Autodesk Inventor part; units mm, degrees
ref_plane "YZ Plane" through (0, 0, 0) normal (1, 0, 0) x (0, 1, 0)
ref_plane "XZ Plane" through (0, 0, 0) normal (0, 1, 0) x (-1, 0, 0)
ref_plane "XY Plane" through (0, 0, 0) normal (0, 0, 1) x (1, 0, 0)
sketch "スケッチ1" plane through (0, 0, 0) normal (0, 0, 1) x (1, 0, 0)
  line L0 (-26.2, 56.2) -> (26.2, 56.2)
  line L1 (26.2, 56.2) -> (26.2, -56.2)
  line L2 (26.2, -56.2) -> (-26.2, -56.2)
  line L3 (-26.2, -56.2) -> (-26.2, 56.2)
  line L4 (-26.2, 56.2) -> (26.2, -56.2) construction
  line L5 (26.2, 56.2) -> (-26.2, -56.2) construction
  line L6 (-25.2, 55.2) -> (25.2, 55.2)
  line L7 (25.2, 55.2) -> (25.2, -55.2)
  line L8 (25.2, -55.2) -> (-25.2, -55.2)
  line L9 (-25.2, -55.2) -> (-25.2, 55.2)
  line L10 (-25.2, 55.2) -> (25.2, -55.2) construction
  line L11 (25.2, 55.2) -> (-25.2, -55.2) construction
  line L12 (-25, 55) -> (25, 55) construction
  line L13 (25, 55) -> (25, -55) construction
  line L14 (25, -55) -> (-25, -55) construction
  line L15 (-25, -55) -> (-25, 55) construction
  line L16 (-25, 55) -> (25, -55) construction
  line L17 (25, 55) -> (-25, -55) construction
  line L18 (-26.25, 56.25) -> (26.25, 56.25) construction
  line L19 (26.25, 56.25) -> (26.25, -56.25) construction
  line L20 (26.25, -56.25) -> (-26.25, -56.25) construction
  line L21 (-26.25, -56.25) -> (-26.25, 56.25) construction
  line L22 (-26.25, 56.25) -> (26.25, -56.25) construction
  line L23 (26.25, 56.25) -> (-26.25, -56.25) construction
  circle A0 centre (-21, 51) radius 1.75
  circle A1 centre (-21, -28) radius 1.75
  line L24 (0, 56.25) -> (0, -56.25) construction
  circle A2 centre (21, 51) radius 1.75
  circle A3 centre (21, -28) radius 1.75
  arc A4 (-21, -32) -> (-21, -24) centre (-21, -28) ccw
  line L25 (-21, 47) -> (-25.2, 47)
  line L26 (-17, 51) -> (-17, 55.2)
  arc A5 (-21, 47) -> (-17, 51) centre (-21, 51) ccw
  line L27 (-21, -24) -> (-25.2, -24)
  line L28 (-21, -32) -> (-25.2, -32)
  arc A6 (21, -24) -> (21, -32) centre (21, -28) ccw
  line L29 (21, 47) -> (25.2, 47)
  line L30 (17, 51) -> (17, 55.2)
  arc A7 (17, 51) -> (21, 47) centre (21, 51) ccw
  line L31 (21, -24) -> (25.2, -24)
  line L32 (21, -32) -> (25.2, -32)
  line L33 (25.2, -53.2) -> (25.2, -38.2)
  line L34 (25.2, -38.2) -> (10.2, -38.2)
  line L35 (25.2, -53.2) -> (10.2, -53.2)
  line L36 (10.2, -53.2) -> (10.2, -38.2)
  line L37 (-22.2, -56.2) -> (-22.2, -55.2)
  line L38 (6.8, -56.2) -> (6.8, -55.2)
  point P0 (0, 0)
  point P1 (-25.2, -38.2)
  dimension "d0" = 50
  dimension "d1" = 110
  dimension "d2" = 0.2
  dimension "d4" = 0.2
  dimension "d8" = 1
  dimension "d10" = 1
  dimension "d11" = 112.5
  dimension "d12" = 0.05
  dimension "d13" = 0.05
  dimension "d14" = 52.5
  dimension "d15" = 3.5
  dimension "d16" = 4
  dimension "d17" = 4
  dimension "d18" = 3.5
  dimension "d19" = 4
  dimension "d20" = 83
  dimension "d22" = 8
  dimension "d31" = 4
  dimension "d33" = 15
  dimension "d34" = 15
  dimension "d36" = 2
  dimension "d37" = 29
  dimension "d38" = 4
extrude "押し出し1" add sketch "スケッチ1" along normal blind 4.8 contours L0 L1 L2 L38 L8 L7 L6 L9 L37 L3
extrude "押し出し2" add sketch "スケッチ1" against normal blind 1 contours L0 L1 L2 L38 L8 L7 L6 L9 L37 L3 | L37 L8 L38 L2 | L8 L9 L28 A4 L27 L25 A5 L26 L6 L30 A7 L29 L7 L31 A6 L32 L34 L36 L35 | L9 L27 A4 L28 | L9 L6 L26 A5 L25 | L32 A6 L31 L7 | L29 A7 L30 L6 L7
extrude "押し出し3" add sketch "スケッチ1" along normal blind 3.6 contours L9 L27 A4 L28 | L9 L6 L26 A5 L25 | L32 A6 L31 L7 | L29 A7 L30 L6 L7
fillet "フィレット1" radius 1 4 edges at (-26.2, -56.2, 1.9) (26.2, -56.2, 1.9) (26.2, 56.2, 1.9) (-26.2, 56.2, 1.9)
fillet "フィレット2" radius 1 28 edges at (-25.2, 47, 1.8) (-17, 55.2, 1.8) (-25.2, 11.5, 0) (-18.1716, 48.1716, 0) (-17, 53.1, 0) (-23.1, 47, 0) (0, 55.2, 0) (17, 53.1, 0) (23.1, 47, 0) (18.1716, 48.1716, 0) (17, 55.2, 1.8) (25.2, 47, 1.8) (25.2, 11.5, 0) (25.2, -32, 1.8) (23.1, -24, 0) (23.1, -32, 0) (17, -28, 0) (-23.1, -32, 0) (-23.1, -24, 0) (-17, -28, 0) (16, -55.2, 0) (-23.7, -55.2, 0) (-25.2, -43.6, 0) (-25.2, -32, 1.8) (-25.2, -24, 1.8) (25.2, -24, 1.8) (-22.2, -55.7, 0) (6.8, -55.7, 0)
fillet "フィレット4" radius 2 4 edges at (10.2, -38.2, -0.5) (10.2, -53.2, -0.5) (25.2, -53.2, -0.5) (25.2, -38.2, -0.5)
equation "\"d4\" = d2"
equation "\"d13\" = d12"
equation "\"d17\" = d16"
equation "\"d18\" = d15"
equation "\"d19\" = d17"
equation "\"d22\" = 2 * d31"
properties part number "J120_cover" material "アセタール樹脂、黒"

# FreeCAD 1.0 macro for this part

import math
import FreeCAD as App
import Part
import Sketcher

V = App.Vector
Q = App.Units.Quantity


def edges_at(feature, points):
    """Names of the edges that pass closest to the given points."""
    edges = feature.Shape.Edges
    near = lambda p: min(range(len(edges)), key=lambda i: edges[i].distToShape(Part.Vertex(*p))[0])
    return sorted({f"Edge{near(p) + 1}" for p in points})


def add_polygon(sketch, points):
    """Adds a closed chain of lines whose ends are joined by coincident constraints."""
    first, n = sketch.GeometryCount, len(points)
    for a, b in zip(points, points[1:] + points[:1]):
        sketch.addGeometry(Part.LineSegment(App.Vector(*a, 0), App.Vector(*b, 0)), False)
    for i in range(n):
        sketch.addConstraint(Sketcher.Constraint("Coincident", first + i, 2, first + (i + 1) % n, 1))

doc = App.newDocument("Part")
body = doc.addObject("PartDesign::Body", "Body")

sketch1 = body.newObject("Sketcher::SketchObject", "Sketch")
sketch1.AttachmentSupport = (doc.getObject("XY_Plane"), [""])
sketch1.MapMode = "FlatFace"
add_polygon(sketch1, [(26.2, 56.2), (-26.2, 56.2), (-26.2, -56.2), (-22.2, -56.2), (-22.2, -55.2), (-25.2, -55.2), (-25.2, 55.2), (25.2, 55.2), (25.2, -55.2), (6.8, -55.2), (6.8, -56.2), (26.2, -56.2)])
sketch1.addConstraint(Sketcher.Constraint("Horizontal", 0))
sketch1.addConstraint(Sketcher.Constraint("Vertical", 1))
sketch1.addConstraint(Sketcher.Constraint("Horizontal", 2))
sketch1.addConstraint(Sketcher.Constraint("Vertical", 3))
sketch1.addConstraint(Sketcher.Constraint("Horizontal", 4))
sketch1.addConstraint(Sketcher.Constraint("Vertical", 5))
sketch1.addConstraint(Sketcher.Constraint("Horizontal", 6))
sketch1.addConstraint(Sketcher.Constraint("Vertical", 7))
sketch1.addConstraint(Sketcher.Constraint("Horizontal", 8))
sketch1.addConstraint(Sketcher.Constraint("Vertical", 9))
sketch1.addConstraint(Sketcher.Constraint("Horizontal", 10))
sketch1.addConstraint(Sketcher.Constraint("Vertical", 11))
sketch1.addConstraint(Sketcher.Constraint("Symmetric", 4, 2, 6, 2, -1, 1))
sketch1.addConstraint(Sketcher.Constraint("Symmetric", 0, 2, 10, 2, -1, 1))
sketch1.addConstraint(Sketcher.Constraint("Horizontal", 4, 2, 7, 2))
sketch1.addConstraint(Sketcher.Constraint("Horizontal", 2, 2, 9, 2))
sketch1.addConstraint(Sketcher.Constraint("DistanceX", 2, 1, 2, 2, Q("4 mm")))
sketch1.addConstraint(Sketcher.Constraint("DistanceY", 3, 1, 3, 2, Q("1 mm")))
sketch1.addConstraint(Sketcher.Constraint("DistanceX", 1, 2, 4, 2, Q("1 mm")))
sketch1.addConstraint(Sketcher.Constraint("DistanceX", 3, 2, 8, 2, Q("29 mm")))
sketch1.addConstraint(Sketcher.Constraint("DistanceX", 0, 2, 0, 1, Q("52.4 mm")))
sketch1.addConstraint(Sketcher.Constraint("DistanceY", 1, 2, 1, 1, Q("112.4 mm")))
pad1 = body.newObject("PartDesign::Pad", "Pad")
pad1.Profile = sketch1
pad1.Length = 4.8

sketch2 = body.newObject("Sketcher::SketchObject", "Sketch001")
sketch2.AttachmentSupport = (doc.getObject("XY_Plane"), [""])
sketch2.MapMode = "FlatFace"
add_polygon(sketch2, [(26.2, 56.2), (-26.2, 56.2), (-26.2, -56.2), (26.2, -56.2)])
add_polygon(sketch2, [(25.2, -38.2), (25.2, -53.2), (10.2, -53.2), (10.2, -38.2)])
sketch2.addGeometry(Part.Circle(V(21, -28, 0), V(0, 0, 1), 1.8), False)
sketch2.addGeometry(Part.Circle(V(21, 51, 0), V(0, 0, 1), 1.8), False)
sketch2.addGeometry(Part.Circle(V(-21, 51, 0), V(0, 0, 1), 1.8), False)
sketch2.addGeometry(Part.Circle(V(-21, -28, 0), V(0, 0, 1), 1.8), False)
sketch2.addConstraint(Sketcher.Constraint("Horizontal", 0))
sketch2.addConstraint(Sketcher.Constraint("Vertical", 1))
sketch2.addConstraint(Sketcher.Constraint("Horizontal", 2))
sketch2.addConstraint(Sketcher.Constraint("Vertical", 3))
sketch2.addConstraint(Sketcher.Constraint("Vertical", 4))
sketch2.addConstraint(Sketcher.Constraint("Horizontal", 5))
sketch2.addConstraint(Sketcher.Constraint("Vertical", 6))
sketch2.addConstraint(Sketcher.Constraint("Horizontal", 7))
sketch2.addConstraint(Sketcher.Constraint("Equal", 8, 9))
sketch2.addConstraint(Sketcher.Constraint("Equal", 9, 10))
sketch2.addConstraint(Sketcher.Constraint("Equal", 10, 11))
sketch2.addConstraint(Sketcher.Constraint("Symmetric", 0, 2, 2, 2, -1, 1))
sketch2.addConstraint(Sketcher.Constraint("Symmetric", 9, 3, 10, 3, -2))
sketch2.addConstraint(Sketcher.Constraint("Symmetric", 8, 3, 11, 3, -2))
sketch2.addConstraint(Sketcher.Constraint("Vertical", 8, 3, 9, 3))
sketch2.addConstraint(Sketcher.Constraint("Equal", 7, 4))
sketch2.addConstraint(Sketcher.Constraint("Diameter", 8, Q("3.5 mm")))
sketch2.addConstraint(Sketcher.Constraint("DistanceX", 5, 2, 5, 1, Q("15 mm")))
sketch2.addConstraint(Sketcher.Constraint("DistanceX", 4, 2, 2, 2, Q("1 mm")))
sketch2.addConstraint(Sketcher.Constraint("DistanceX", 0, 2, 0, 1, Q("52.4 mm")))
sketch2.addConstraint(Sketcher.Constraint("DistanceY", 1, 2, 1, 1, Q("112.4 mm")))
sketch2.addConstraint(Sketcher.Constraint("DistanceX", -1, 1, 8, 3, Q("21 mm")))
sketch2.addConstraint(Sketcher.Constraint("DistanceY", 8, 3, -1, 1, Q("28 mm")))
sketch2.addConstraint(Sketcher.Constraint("DistanceY", -1, 1, 9, 3, Q("51 mm")))
sketch2.addConstraint(Sketcher.Constraint("DistanceY", 2, 2, 4, 2, Q("3 mm")))
pad2 = body.newObject("PartDesign::Pad", "Pad001")
pad2.Profile = sketch2
pad2.Length = 1
pad2.Reversed = True

sketch3 = body.newObject("Sketcher::SketchObject", "Sketch002")
sketch3.AttachmentSupport = (doc.getObject("XY_Plane"), [""])
sketch3.MapMode = "FlatFace"
sketch3.addGeometry(Part.LineSegment(V(-25.2, -24, 0), V(-25.2, -32, 0)), False)
sketch3.addGeometry(Part.LineSegment(V(-25.2, -32, 0), V(-21, -32, 0)), False)
sketch3.addGeometry(Part.ArcOfCircle(Part.Circle(V(-21, -28, 0), V(0, 0, 1), 4), math.radians(-90), math.radians(90)), False)
sketch3.addGeometry(Part.LineSegment(V(-21, -24, 0), V(-25.2, -24, 0)), False)
sketch3.addGeometry(Part.Circle(V(-21, -28, 0), V(0, 0, 1), 1.8), False)
sketch3.addGeometry(Part.LineSegment(V(-25.2, 55.2, 0), V(-25.2, 47, 0)), False)
sketch3.addGeometry(Part.LineSegment(V(-25.2, 47, 0), V(-21, 47, 0)), False)
sketch3.addGeometry(Part.ArcOfCircle(Part.Circle(V(-21, 51, 0), V(0, 0, 1), 4), math.radians(-90), math.radians(0)), False)
sketch3.addGeometry(Part.LineSegment(V(-17, 51, 0), V(-17, 55.2, 0)), False)
sketch3.addGeometry(Part.LineSegment(V(-17, 55.2, 0), V(-25.2, 55.2, 0)), False)
sketch3.addGeometry(Part.Circle(V(-21, 51, 0), V(0, 0, 1), 1.8), False)
sketch3.addGeometry(Part.LineSegment(V(21, -32, 0), V(25.2, -32, 0)), False)
sketch3.addGeometry(Part.LineSegment(V(25.2, -32, 0), V(25.2, -24, 0)), False)
sketch3.addGeometry(Part.LineSegment(V(25.2, -24, 0), V(21, -24, 0)), False)
sketch3.addGeometry(Part.ArcOfCircle(Part.Circle(V(21, -28, 0), V(0, 0, 1), 4), math.radians(90), math.radians(270)), False)
sketch3.addGeometry(Part.Circle(V(21, -28, 0), V(0, 0, 1), 1.8), False)
sketch3.addGeometry(Part.LineSegment(V(21, 47, 0), V(25.2, 47, 0)), False)
sketch3.addGeometry(Part.LineSegment(V(25.2, 47, 0), V(25.2, 55.2, 0)), False)
sketch3.addGeometry(Part.LineSegment(V(25.2, 55.2, 0), V(17, 55.2, 0)), False)
sketch3.addGeometry(Part.LineSegment(V(17, 55.2, 0), V(17, 51, 0)), False)
sketch3.addGeometry(Part.ArcOfCircle(Part.Circle(V(21, 51, 0), V(0, 0, 1), 4), math.radians(180), math.radians(270)), False)
sketch3.addGeometry(Part.Circle(V(21, 51, 0), V(0, 0, 1), 1.8), False)
sketch3.addConstraint(Sketcher.Constraint("Coincident", 0, 2, 1, 1))
sketch3.addConstraint(Sketcher.Constraint("Tangent", 1, 2, 2, 1))
sketch3.addConstraint(Sketcher.Constraint("Tangent", 2, 2, 3, 1))
sketch3.addConstraint(Sketcher.Constraint("Coincident", 3, 2, 0, 1))
sketch3.addConstraint(Sketcher.Constraint("Coincident", 5, 2, 6, 1))
sketch3.addConstraint(Sketcher.Constraint("Tangent", 6, 2, 7, 1))
sketch3.addConstraint(Sketcher.Constraint("Tangent", 7, 2, 8, 1))
sketch3.addConstraint(Sketcher.Constraint("Coincident", 8, 2, 9, 1))
sketch3.addConstraint(Sketcher.Constraint("Coincident", 9, 2, 5, 1))
sketch3.addConstraint(Sketcher.Constraint("Coincident", 11, 2, 12, 1))
sketch3.addConstraint(Sketcher.Constraint("Coincident", 12, 2, 13, 1))
sketch3.addConstraint(Sketcher.Constraint("Tangent", 13, 2, 14, 1))
sketch3.addConstraint(Sketcher.Constraint("Tangent", 14, 2, 11, 1))
sketch3.addConstraint(Sketcher.Constraint("Coincident", 16, 2, 17, 1))
sketch3.addConstraint(Sketcher.Constraint("Coincident", 17, 2, 18, 1))
sketch3.addConstraint(Sketcher.Constraint("Coincident", 18, 2, 19, 1))
sketch3.addConstraint(Sketcher.Constraint("Tangent", 19, 2, 20, 1))
sketch3.addConstraint(Sketcher.Constraint("Tangent", 20, 2, 16, 1))
sketch3.addConstraint(Sketcher.Constraint("Vertical", 0))
sketch3.addConstraint(Sketcher.Constraint("Horizontal", 1))
sketch3.addConstraint(Sketcher.Constraint("Horizontal", 3))
sketch3.addConstraint(Sketcher.Constraint("Vertical", 5))
sketch3.addConstraint(Sketcher.Constraint("Horizontal", 6))
sketch3.addConstraint(Sketcher.Constraint("Vertical", 8))
sketch3.addConstraint(Sketcher.Constraint("Horizontal", 9))
sketch3.addConstraint(Sketcher.Constraint("Horizontal", 11))
sketch3.addConstraint(Sketcher.Constraint("Vertical", 12))
sketch3.addConstraint(Sketcher.Constraint("Horizontal", 13))
sketch3.addConstraint(Sketcher.Constraint("Horizontal", 16))
sketch3.addConstraint(Sketcher.Constraint("Vertical", 17))
sketch3.addConstraint(Sketcher.Constraint("Horizontal", 18))
sketch3.addConstraint(Sketcher.Constraint("Vertical", 19))
sketch3.addConstraint(Sketcher.Constraint("Coincident", 4, 3, 2, 3))
sketch3.addConstraint(Sketcher.Constraint("Coincident", 10, 3, 7, 3))
sketch3.addConstraint(Sketcher.Constraint("Coincident", 15, 3, 14, 3))
sketch3.addConstraint(Sketcher.Constraint("Coincident", 21, 3, 20, 3))
sketch3.addConstraint(Sketcher.Constraint("Equal", 2, 7))
sketch3.addConstraint(Sketcher.Constraint("Equal", 4, 10))
sketch3.addConstraint(Sketcher.Constraint("Equal", 7, 14))
sketch3.addConstraint(Sketcher.Constraint("Equal", 10, 15))
sketch3.addConstraint(Sketcher.Constraint("Equal", 14, 20))
sketch3.addConstraint(Sketcher.Constraint("Equal", 15, 21))
sketch3.addConstraint(Sketcher.Constraint("Symmetric", 2, 3, 14, 3, -2))
sketch3.addConstraint(Sketcher.Constraint("Symmetric", 7, 3, 20, 3, -2))
sketch3.addConstraint(Sketcher.Constraint("Symmetric", 9, 2, 17, 2, -2))
sketch3.addConstraint(Sketcher.Constraint("Vertical", 4, 3, 7, 3))
sketch3.addConstraint(Sketcher.Constraint("Vertical", 3, 2, 5, 2))
sketch3.addConstraint(Sketcher.Constraint("Vertical", 12, 2, 16, 2))
sketch3.addConstraint(Sketcher.Constraint("Equal", 18, 5))
sketch3.addConstraint(Sketcher.Constraint("Radius", 2, Q("4 mm")))
sketch3.addConstraint(Sketcher.Constraint("Diameter", 4, Q("3.5 mm")))
sketch3.addConstraint(Sketcher.Constraint("DistanceY", 0, 2, 7, 3, Q("83 mm")))
sketch3.addConstraint(Sketcher.Constraint("DistanceX", 1, 1, 1, 2, Q("4.2 mm")))
sketch3.addConstraint(Sketcher.Constraint("DistanceX", 2, 3, -1, 1, Q("21 mm")))
sketch3.addConstraint(Sketcher.Constraint("DistanceY", 2, 3, -1, 1, Q("28 mm")))
pad3 = body.newObject("PartDesign::Pad", "Pad002")
pad3.Profile = sketch3
pad3.Length = 3.6
doc.recompute()

fillet = body.newObject("PartDesign::Fillet", "Fillet")
fillet.Base = (pad3, edges_at(pad3, [
    (-26.2, -56.2, 1.9),
    (26.2, -56.2, 1.9),
    (26.2, 56.2, 1.9),
    (-26.2, 56.2, 1.9),
]))
fillet.Radius = 1
doc.recompute()

fillet2 = body.newObject("PartDesign::Fillet", "Fillet001")
fillet2.Base = (fillet, edges_at(fillet, [
    (-25.2, 47, 1.8),
    (-17, 55.2, 1.8),
    (-25.2, 11.5, 0),
    (-18.172, 48.172, 0),
    (-17, 53.1, 0),
    (-23.1, 47, 0),
    (0, 55.2, 0),
    (17, 53.1, 0),
    (23.1, 47, 0),
    (18.172, 48.172, 0),
    (17, 55.2, 1.8),
    (25.2, 47, 1.8),
    (25.2, 11.5, 0),
    (25.2, -32, 1.8),
    (23.1, -24, 0),
    (23.1, -32, 0),
    (17, -28, 0),
    (-23.1, -32, 0),
    (-23.1, -24, 0),
    (-17, -28, 0),
    (16, -55.2, 0),
    (-23.7, -55.2, 0),
    (-25.2, -43.6, 0),
    (-25.2, -32, 1.8),
    (-25.2, -24, 1.8),
    (25.2, -24, 1.8),
    (-22.2, -55.7, 0),
    (6.8, -55.7, 0),
]))
fillet2.Radius = 1
doc.recompute()

fillet3 = body.newObject("PartDesign::Fillet", "Fillet002")
fillet3.Base = (fillet2, edges_at(fillet2, [
    (10.2, -38.2, -0.5),
    (10.2, -53.2, -0.5),
    (25.2, -53.2, -0.5),
    (25.2, -38.2, -0.5),
]))
fillet3.Radius = 2

doc.recompute()
